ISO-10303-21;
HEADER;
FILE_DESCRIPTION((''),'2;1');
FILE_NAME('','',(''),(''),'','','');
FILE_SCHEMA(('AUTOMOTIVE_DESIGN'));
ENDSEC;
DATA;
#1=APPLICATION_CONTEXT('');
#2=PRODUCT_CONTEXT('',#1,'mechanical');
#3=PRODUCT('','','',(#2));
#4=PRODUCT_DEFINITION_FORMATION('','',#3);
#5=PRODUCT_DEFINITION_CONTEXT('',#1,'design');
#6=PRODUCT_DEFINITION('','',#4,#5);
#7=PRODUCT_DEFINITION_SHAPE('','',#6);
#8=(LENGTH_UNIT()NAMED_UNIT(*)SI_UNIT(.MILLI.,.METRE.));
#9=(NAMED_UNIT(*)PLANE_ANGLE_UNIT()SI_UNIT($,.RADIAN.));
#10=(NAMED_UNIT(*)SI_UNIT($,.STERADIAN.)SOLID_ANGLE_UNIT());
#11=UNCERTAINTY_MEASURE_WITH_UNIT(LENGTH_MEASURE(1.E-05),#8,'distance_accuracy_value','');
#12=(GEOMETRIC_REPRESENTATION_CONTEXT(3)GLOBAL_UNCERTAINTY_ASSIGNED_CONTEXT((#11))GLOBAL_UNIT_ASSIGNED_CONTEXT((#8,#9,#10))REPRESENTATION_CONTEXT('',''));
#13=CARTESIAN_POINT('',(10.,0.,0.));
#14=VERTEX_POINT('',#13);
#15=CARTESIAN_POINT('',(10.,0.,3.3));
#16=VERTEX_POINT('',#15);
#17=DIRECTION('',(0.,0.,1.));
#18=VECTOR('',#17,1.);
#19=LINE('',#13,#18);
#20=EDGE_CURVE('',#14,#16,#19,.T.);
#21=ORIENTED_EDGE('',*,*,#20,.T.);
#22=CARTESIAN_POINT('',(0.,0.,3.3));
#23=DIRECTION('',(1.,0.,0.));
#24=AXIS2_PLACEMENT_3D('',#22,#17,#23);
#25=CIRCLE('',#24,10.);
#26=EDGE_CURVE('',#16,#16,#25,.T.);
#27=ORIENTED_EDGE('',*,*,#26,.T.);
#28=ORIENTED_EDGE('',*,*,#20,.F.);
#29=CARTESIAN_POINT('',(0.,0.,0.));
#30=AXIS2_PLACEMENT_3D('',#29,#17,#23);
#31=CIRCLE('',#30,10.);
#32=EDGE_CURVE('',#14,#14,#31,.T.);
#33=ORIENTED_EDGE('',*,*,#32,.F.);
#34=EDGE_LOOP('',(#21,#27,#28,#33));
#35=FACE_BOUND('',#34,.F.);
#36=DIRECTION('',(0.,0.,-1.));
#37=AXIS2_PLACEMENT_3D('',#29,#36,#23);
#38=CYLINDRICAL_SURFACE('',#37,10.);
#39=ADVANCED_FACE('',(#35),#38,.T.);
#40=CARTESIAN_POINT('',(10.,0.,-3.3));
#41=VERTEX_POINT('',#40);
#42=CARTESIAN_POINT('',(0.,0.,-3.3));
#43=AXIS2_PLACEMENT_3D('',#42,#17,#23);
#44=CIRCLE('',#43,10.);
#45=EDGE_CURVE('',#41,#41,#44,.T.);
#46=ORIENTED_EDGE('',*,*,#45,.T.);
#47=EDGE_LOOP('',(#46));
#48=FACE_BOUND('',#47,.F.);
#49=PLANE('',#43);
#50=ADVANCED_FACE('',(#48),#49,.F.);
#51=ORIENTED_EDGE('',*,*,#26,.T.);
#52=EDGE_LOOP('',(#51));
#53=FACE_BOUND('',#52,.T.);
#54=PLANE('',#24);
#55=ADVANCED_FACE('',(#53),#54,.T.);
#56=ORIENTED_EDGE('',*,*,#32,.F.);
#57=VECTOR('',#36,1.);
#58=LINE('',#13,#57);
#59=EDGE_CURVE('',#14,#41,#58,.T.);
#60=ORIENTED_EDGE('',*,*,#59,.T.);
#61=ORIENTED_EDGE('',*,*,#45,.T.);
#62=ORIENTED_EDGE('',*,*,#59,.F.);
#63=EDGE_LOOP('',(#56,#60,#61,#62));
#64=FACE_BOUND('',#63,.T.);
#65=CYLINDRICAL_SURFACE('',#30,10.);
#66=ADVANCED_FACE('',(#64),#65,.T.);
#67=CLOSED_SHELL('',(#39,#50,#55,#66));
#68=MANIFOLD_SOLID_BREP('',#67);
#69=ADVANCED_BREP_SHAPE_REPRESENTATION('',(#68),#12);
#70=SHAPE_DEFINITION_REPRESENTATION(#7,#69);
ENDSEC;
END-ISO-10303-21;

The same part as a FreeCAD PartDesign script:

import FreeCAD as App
import Part
import Sketcher
from FreeCAD import Vector

doc = App.newDocument("Part")
body = doc.addObject("PartDesign::Body", "Body")

# Sketch on XY plane
sketch1 = body.newObject("Sketcher::SketchObject", "Sketch")
sketch1.AttachmentSupport = (doc.getObject("XY_Plane"), [""])
sketch1.MapMode = "FlatFace"
sketch1.addGeometry(Part.Circle(Vector(0, 0, 0), Vector(0, 0, 1), 10), False)
sketch1.addConstraint([
    Sketcher.Constraint("Coincident", 0, 3, -1, 1),
    Sketcher.Constraint("Diameter", 0, 20.0),
])
pad1 = body.newObject("PartDesign::Pad", "Pad")
pad1.Profile = sketch1
pad1.Length = 6.6
pad1.Midplane = True

doc.recompute()
